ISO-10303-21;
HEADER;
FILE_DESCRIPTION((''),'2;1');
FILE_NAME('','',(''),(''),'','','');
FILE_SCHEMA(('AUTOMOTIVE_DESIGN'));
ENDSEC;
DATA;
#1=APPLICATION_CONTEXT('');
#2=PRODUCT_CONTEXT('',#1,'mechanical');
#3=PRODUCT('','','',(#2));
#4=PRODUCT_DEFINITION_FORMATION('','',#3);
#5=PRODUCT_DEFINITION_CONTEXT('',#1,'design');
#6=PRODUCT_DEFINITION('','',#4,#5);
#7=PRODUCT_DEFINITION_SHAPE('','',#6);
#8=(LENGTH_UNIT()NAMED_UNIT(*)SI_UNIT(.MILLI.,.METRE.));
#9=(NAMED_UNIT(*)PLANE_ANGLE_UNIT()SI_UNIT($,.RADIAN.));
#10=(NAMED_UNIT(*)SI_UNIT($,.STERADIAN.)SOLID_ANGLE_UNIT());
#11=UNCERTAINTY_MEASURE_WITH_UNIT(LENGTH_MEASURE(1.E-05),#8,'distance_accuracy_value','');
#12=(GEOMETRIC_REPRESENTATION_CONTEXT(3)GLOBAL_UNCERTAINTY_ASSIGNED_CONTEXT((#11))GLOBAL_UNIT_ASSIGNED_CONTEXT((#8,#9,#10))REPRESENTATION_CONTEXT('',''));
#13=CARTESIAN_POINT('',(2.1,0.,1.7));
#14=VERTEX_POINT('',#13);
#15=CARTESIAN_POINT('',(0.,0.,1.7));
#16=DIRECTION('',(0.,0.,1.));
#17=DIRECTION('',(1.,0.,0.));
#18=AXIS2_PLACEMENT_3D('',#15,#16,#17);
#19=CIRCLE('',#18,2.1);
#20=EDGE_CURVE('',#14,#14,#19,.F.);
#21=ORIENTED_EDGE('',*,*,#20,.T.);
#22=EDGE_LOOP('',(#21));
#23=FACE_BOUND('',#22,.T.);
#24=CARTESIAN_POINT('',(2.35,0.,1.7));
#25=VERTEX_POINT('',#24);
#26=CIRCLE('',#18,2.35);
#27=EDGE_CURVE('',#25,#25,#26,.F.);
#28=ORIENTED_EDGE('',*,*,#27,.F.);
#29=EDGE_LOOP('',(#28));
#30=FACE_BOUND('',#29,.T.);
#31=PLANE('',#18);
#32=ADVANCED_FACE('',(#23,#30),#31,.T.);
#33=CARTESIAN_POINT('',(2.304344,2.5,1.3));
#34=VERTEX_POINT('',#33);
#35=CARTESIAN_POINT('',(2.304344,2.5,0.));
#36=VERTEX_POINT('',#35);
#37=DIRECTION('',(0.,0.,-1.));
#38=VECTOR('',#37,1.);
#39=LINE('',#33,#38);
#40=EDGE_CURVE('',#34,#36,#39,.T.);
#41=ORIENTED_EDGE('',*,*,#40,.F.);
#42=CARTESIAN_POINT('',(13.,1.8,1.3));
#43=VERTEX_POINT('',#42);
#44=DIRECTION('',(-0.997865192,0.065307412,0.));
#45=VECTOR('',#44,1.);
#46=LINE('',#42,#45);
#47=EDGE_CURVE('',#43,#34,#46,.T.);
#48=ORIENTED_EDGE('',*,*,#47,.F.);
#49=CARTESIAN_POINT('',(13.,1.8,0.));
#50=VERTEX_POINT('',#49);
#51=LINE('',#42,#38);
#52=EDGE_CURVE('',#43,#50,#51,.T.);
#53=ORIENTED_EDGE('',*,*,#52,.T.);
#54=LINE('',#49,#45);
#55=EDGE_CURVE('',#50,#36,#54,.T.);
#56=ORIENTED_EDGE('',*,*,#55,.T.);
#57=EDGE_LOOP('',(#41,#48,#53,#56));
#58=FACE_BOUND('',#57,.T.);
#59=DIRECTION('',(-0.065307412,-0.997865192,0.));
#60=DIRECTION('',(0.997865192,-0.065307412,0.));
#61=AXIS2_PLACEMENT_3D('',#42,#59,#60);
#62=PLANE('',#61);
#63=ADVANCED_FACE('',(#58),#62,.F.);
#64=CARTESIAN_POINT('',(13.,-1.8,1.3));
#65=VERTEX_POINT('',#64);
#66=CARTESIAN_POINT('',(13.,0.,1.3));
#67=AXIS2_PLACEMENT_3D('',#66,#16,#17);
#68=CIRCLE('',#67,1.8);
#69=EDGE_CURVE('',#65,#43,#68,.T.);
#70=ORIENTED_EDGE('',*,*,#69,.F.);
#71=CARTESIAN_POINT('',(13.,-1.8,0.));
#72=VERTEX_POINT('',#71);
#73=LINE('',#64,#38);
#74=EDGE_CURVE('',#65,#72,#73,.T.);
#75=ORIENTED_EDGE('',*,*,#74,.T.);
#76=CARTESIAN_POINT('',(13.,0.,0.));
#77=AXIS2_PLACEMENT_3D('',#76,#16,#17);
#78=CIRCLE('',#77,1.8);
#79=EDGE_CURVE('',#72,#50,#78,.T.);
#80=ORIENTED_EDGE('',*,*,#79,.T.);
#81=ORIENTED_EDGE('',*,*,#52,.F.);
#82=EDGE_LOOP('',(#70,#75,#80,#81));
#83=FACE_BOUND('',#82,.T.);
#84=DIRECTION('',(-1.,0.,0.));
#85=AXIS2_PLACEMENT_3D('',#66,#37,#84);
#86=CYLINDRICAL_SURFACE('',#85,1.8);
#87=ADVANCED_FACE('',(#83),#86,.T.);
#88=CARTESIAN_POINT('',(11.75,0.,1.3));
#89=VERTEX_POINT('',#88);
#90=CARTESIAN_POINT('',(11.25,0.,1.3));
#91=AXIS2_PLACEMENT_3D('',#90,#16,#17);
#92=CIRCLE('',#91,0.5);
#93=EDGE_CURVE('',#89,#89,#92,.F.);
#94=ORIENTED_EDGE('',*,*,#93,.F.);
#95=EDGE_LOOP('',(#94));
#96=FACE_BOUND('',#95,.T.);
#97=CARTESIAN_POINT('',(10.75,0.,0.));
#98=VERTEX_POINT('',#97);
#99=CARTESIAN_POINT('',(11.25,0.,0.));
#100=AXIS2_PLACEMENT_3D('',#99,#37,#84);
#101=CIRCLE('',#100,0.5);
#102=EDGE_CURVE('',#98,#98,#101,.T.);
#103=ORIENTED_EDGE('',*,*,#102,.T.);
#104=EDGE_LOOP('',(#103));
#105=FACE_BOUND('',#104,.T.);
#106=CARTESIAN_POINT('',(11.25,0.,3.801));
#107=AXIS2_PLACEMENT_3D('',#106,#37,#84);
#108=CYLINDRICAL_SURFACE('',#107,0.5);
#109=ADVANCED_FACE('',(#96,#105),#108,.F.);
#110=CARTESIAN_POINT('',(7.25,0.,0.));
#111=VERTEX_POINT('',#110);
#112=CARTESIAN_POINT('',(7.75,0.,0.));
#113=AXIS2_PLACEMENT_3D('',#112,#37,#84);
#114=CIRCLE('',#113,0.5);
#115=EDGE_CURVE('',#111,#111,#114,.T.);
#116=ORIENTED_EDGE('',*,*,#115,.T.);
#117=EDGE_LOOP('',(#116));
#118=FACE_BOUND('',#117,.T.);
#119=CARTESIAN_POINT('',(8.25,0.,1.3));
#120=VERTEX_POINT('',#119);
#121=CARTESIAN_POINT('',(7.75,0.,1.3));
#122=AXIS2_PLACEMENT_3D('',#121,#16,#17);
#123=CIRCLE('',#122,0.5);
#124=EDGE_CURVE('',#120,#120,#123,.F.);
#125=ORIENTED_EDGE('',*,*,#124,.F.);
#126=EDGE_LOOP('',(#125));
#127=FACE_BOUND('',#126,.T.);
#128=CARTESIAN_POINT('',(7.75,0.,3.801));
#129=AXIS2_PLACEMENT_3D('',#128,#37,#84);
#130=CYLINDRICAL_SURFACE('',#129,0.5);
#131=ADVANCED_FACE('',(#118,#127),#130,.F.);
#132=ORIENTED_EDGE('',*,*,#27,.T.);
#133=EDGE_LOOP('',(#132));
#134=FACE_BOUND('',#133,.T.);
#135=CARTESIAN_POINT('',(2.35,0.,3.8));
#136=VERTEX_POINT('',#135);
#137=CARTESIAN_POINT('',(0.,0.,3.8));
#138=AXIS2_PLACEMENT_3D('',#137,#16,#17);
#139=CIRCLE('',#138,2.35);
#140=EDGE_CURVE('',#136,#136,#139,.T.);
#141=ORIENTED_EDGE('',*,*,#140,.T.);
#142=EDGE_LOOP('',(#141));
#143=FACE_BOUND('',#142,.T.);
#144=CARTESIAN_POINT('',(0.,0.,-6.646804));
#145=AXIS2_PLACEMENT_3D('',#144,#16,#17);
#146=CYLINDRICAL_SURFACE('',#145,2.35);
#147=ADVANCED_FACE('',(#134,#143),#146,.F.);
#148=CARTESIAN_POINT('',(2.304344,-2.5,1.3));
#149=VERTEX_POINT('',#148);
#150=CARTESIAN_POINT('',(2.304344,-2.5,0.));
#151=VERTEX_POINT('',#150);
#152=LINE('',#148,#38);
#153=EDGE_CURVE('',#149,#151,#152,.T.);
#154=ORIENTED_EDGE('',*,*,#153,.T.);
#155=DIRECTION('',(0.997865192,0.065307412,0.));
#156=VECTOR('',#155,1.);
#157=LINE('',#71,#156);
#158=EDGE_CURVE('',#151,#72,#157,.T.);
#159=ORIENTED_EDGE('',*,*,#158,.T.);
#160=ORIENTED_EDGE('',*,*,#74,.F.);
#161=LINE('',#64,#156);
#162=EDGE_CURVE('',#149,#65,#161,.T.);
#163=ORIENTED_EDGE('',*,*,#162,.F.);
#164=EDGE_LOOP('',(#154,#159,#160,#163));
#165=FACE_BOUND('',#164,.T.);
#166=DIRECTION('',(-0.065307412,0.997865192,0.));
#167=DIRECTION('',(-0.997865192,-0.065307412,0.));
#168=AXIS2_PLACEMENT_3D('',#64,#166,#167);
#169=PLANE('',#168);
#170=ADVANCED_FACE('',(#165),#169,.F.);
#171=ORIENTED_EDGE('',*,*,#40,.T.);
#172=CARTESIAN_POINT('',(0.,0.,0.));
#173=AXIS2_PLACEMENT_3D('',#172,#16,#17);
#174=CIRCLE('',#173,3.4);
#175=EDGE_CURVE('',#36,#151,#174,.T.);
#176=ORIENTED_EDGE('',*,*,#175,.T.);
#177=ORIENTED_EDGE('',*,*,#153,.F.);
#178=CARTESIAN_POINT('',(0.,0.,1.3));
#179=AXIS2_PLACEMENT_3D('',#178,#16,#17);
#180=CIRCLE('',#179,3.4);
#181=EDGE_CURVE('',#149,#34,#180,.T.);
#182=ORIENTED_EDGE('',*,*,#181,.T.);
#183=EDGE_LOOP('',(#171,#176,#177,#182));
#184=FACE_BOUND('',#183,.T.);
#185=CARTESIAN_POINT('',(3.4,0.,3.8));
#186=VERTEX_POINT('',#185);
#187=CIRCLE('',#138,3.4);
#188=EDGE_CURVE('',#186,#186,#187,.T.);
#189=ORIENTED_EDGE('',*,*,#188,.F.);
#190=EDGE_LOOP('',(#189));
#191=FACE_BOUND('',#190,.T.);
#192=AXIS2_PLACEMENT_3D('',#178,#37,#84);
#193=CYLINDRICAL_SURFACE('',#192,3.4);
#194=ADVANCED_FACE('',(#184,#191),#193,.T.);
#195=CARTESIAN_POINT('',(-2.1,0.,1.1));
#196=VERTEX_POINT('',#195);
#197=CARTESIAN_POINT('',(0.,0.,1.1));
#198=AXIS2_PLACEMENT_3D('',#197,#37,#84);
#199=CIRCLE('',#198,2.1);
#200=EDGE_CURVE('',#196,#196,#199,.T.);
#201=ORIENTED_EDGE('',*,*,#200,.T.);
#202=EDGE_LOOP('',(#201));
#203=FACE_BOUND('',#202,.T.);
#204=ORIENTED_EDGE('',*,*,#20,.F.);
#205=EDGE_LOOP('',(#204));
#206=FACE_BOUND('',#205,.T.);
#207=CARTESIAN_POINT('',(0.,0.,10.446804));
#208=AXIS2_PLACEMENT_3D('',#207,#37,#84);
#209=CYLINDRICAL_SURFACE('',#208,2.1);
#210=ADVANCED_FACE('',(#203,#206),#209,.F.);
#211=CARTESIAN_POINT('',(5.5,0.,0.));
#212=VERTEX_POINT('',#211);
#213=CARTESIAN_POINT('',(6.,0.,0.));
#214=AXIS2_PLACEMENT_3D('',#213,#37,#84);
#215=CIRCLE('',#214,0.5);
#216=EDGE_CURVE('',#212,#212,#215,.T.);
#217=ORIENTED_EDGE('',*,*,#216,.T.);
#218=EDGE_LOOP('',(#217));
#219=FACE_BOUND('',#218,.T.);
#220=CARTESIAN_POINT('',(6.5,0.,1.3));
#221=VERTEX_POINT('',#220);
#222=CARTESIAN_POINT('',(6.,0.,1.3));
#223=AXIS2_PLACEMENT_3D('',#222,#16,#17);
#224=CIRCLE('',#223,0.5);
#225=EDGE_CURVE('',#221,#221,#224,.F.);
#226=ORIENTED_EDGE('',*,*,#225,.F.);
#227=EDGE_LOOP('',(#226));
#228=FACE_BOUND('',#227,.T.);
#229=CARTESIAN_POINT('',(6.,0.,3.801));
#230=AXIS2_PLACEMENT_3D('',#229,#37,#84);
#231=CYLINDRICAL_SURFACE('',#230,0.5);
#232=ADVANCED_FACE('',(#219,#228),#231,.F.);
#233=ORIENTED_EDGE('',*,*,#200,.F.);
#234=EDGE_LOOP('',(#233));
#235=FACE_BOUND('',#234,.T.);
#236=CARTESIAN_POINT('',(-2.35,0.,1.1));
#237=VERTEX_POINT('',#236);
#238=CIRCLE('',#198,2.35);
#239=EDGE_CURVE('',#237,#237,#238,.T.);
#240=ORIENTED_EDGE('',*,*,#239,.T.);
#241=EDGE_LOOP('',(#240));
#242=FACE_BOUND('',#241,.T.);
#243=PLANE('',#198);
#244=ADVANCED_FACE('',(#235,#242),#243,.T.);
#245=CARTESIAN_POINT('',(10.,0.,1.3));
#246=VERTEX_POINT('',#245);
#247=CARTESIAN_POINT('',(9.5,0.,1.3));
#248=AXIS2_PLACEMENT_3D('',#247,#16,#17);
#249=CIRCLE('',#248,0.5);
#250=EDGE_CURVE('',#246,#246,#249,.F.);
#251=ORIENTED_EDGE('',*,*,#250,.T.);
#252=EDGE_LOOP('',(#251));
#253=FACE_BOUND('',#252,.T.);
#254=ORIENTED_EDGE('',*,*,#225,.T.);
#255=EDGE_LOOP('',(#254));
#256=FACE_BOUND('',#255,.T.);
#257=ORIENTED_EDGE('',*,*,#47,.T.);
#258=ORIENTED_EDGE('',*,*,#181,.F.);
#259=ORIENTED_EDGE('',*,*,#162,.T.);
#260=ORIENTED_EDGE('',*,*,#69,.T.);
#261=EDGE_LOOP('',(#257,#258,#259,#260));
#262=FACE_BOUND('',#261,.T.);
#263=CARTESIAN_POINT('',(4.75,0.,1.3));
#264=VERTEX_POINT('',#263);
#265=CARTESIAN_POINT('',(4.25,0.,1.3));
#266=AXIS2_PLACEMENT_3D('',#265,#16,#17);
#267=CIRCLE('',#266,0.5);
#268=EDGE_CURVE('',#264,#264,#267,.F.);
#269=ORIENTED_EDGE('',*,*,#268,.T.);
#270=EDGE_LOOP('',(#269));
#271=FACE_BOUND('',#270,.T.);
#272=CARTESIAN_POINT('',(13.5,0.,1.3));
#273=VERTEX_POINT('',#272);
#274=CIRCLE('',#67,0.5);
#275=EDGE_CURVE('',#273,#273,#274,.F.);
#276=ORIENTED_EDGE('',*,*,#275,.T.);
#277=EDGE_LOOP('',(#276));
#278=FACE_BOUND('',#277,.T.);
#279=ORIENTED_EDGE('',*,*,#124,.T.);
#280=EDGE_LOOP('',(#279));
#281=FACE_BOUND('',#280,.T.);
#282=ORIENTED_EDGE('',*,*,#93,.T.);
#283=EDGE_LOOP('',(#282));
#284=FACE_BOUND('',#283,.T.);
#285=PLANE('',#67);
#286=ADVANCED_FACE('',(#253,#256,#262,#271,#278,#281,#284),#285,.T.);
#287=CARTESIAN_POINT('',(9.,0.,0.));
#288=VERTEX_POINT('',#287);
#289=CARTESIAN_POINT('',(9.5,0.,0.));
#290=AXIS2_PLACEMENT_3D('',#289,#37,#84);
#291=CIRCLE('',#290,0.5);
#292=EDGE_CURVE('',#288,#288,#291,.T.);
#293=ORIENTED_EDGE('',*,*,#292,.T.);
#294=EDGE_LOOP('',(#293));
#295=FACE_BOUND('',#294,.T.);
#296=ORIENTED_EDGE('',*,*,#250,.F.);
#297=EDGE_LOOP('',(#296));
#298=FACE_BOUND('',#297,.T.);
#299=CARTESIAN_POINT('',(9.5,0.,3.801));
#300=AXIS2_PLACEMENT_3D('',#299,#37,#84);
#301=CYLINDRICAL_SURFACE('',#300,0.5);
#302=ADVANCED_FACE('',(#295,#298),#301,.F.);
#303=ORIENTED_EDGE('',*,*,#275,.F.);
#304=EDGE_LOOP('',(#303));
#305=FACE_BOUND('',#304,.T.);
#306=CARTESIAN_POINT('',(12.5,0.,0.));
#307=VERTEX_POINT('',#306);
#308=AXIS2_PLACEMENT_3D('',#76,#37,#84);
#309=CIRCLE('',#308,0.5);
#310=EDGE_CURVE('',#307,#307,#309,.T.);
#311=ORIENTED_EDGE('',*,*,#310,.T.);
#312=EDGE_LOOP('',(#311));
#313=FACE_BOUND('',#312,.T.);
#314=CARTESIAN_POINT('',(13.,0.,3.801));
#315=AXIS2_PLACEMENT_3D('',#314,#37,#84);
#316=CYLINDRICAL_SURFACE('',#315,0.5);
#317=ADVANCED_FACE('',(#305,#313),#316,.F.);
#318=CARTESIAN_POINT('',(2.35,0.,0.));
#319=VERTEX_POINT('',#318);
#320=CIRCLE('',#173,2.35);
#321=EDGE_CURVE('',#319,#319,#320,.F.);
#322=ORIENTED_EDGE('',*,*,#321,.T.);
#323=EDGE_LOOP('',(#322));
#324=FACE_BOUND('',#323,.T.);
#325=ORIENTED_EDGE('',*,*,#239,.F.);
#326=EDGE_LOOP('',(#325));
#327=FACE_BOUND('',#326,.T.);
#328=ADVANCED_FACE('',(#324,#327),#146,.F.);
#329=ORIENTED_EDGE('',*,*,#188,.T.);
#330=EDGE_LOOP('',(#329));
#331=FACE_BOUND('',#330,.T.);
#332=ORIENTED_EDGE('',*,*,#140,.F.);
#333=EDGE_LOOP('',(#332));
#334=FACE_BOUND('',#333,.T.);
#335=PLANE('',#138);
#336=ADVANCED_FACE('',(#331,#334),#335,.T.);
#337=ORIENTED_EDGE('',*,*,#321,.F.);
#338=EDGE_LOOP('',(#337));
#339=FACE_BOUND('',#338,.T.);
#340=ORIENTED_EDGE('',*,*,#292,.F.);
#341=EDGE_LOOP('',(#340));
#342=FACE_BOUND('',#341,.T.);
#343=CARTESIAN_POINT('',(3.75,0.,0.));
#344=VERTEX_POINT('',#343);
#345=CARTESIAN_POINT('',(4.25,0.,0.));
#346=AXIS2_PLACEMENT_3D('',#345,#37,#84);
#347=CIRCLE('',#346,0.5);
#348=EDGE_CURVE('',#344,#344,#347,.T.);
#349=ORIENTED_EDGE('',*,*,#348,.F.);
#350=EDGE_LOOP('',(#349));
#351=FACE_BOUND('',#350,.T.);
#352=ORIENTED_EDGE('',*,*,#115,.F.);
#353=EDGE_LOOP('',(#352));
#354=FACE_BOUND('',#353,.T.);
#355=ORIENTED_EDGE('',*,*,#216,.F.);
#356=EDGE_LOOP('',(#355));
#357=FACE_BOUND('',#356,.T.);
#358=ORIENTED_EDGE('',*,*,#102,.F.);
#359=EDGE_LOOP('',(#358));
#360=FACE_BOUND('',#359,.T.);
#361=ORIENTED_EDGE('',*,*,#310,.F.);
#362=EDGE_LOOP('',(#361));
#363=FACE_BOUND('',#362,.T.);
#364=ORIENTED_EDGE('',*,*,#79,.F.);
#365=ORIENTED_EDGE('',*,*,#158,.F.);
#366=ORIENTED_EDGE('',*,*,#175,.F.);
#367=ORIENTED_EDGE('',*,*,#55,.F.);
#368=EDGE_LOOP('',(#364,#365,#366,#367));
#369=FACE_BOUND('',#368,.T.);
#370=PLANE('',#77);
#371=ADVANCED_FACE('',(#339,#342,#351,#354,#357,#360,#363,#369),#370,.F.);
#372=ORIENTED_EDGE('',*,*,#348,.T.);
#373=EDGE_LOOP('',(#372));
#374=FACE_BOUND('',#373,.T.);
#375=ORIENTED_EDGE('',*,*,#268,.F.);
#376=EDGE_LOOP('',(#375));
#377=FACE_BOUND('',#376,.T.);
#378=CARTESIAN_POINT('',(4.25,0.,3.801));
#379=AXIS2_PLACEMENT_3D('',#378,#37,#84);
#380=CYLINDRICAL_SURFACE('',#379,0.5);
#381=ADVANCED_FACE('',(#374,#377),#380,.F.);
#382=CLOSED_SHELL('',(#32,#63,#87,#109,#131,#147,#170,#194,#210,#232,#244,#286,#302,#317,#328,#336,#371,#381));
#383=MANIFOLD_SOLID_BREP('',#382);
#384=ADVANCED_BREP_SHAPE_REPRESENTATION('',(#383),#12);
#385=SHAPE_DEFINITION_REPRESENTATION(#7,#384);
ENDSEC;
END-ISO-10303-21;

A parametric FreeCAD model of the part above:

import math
import FreeCAD as App
import Part
import Sketcher

V = App.Vector

doc = App.newDocument("Part")
params = doc.addObject("Spreadsheet::Sheet", "Params")
for row, (alias, value) in enumerate([
    ("sketch1_radius", "3.4 mm"),
    ("sketch1_radius2", "1.8 mm"),
    ("pad1_length", "1.3 mm"),
    ("sketch2_diameter", "4.7 mm"),
    ("pocket1_length", "1.3 mm"),
    ("sketch3_diameter", "6.8 mm"),
    ("sketch3_diameter2", "4.7 mm"),
    ("pad2_length", "2.5 mm"),
    ("sketch4_diameter", "4.7 mm"),
    ("sketch4_diameter2", "4.2 mm"),
    ("pad3_length", "0.6 mm"),
    ("sketch5_diameter", "1 mm"),
    ("sketch6_diameter", "1 mm"),
    ("sketch7_diameter", "1 mm"),
    ("sketch8_diameter", "1 mm"),
    ("sketch9_diameter", "1 mm"),
    ("sketch10_diameter", "1 mm"),
], start=1):
    params.set(f"A{row}", alias)
    params.set(f"B{row}", "=" + value)
    params.setAlias(f"B{row}", alias)

body = doc.addObject("PartDesign::Body", "Body")

sketch1 = body.newObject("Sketcher::SketchObject", "Sketch")
sketch1.AttachmentSupport = (doc.getObject("XY_Plane"), [""])
sketch1.MapMode = "FlatFace"
sketch1.addGeometry(Part.LineSegment(V(13, 1.8, 0), V(2.3, 2.5, 0)), False)
sketch1.addGeometry(Part.ArcOfCircle(Part.Circle(V(0, 0, 0), V(0, 0, 1), 3.4), math.radians(47), math.radians(313)), False)
sketch1.addGeometry(Part.LineSegment(V(2.3, -2.5, 0), V(13, -1.8, 0)), False)
sketch1.addGeometry(Part.ArcOfCircle(Part.Circle(V(13, 0, 0), V(0, 0, 1), 1.8), math.radians(-90), math.radians(90)), False)
sketch1.addConstraint(Sketcher.Constraint("Coincident", 0, 2, 1, 1))
sketch1.addConstraint(Sketcher.Constraint("Coincident", 1, 2, 2, 1))
sketch1.addConstraint(Sketcher.Constraint("Coincident", 2, 2, 3, 1))
sketch1.addConstraint(Sketcher.Constraint("Coincident", 3, 2, 0, 1))
sketch1.addConstraint(Sketcher.Constraint("Coincident", 1, 3, -1, 1))
sketch1.addConstraint(Sketcher.Constraint("Symmetric", 2, 2, 3, 2, -1))
sketch1.addConstraint(Sketcher.Constraint("Vertical", 0, 2, 1, 2))
sketch1.addConstraint(Sketcher.Constraint("Vertical", 3, 3, 2, 2))
sketch1.addConstraint(Sketcher.Constraint("Radius", 1, 3.4))
sketch1.addConstraint(Sketcher.Constraint("Radius", 3, 1.8))
sketch1.addConstraint(Sketcher.Constraint("DistanceX", -1, 1, 3, 3, 13.0))
sketch1.addConstraint(Sketcher.Constraint("DistanceY", 1, 2, 0, 2, 5.0))
sketch1.setExpression("Constraints[8]", "Params.sketch1_radius")
sketch1.setExpression("Constraints[9]", "Params.sketch1_radius2")
pad1 = body.newObject("PartDesign::Pad", "Pad")
pad1.Profile = sketch1
pad1.setExpression("Length", "Params.pad1_length")

sketch2 = body.newObject("Sketcher::SketchObject", "Sketch001")
sketch2.AttachmentSupport = (doc.getObject("XY_Plane"), [""])
sketch2.MapMode = "FlatFace"
sketch2.AttachmentOffset = App.Placement(V(0, 0, 1.3), App.Rotation())
sketch2.addGeometry(Part.Circle(V(0, 0, 0), V(0, 0, 1), 2.4), False)
sketch2.addConstraint(Sketcher.Constraint("Coincident", 0, 3, -1, 1))
sketch2.addConstraint(Sketcher.Constraint("Diameter", 0, 4.7))
sketch2.setExpression("Constraints[1]", "Params.sketch2_diameter")
pocket1 = body.newObject("PartDesign::Pocket", "Pocket")
pocket1.Profile = sketch2
pocket1.setExpression("Length", "Params.pocket1_length")

sketch3 = body.newObject("Sketcher::SketchObject", "Sketch002")
sketch3.AttachmentSupport = (doc.getObject("XY_Plane"), [""])
sketch3.MapMode = "FlatFace"
sketch3.AttachmentOffset = App.Placement(V(0, 0, 1.3), App.Rotation())
sketch3.addGeometry(Part.Circle(V(0, 0, 0), V(0, 0, 1), 3.4), False)
sketch3.addGeometry(Part.Circle(V(0, 0, 0), V(0, 0, 1), 2.4), False)
sketch3.addConstraint(Sketcher.Constraint("Coincident", 0, 3, -1, 1))
sketch3.addConstraint(Sketcher.Constraint("Coincident", 1, 3, -1, 1))
sketch3.addConstraint(Sketcher.Constraint("Diameter", 0, 6.8))
sketch3.addConstraint(Sketcher.Constraint("Diameter", 1, 4.7))
sketch3.setExpression("Constraints[2]", "Params.sketch3_diameter")
sketch3.setExpression("Constraints[3]", "Params.sketch3_diameter2")
pad2 = body.newObject("PartDesign::Pad", "Pad001")
pad2.Profile = sketch3
pad2.setExpression("Length", "Params.pad2_length")

sketch4 = body.newObject("Sketcher::SketchObject", "Sketch003")
sketch4.AttachmentSupport = (doc.getObject("XY_Plane"), [""])
sketch4.MapMode = "FlatFace"
sketch4.AttachmentOffset = App.Placement(V(0, 0, 1.1), App.Rotation())
sketch4.addGeometry(Part.Circle(V(0, 0, 0), V(0, 0, 1), 2.4), False)
sketch4.addGeometry(Part.Circle(V(0, 0, 0), V(0, 0, 1), 2.1), False)
sketch4.addConstraint(Sketcher.Constraint("Coincident", 0, 3, -1, 1))
sketch4.addConstraint(Sketcher.Constraint("Coincident", 1, 3, -1, 1))
sketch4.addConstraint(Sketcher.Constraint("Diameter", 0, 4.7))
sketch4.addConstraint(Sketcher.Constraint("Diameter", 1, 4.2))
sketch4.setExpression("Constraints[2]", "Params.sketch4_diameter")
sketch4.setExpression("Constraints[3]", "Params.sketch4_diameter2")
pad3 = body.newObject("PartDesign::Pad", "Pad002")
pad3.Profile = sketch4
pad3.setExpression("Length", "Params.pad3_length")

sketch5 = body.newObject("Sketcher::SketchObject", "Sketch004")
sketch5.AttachmentSupport = (doc.getObject("XY_Plane"), [""])
sketch5.MapMode = "FlatFace"
sketch5.addGeometry(Part.Circle(V(13, 0, 0), V(0, 0, 1), 0.5), False)
sketch5.addConstraint(Sketcher.Constraint("PointOnObject", 0, 3, -1))
sketch5.addConstraint(Sketcher.Constraint("Diameter", 0, 1.0))
sketch5.addConstraint(Sketcher.Constraint("DistanceX", -1, 1, 0, 3, 13.0))
sketch5.setExpression("Constraints[1]", "Params.sketch5_diameter")
pocket2 = body.newObject("PartDesign::Pocket", "Pocket001")
pocket2.Profile = sketch5
pocket2.Type = "UpToFirst"
pocket2.Reversed = True

sketch6 = body.newObject("Sketcher::SketchObject", "Sketch005")
sketch6.AttachmentSupport = (doc.getObject("XY_Plane"), [""])
sketch6.MapMode = "FlatFace"
sketch6.addGeometry(Part.Circle(V(11.2, 0, 0), V(0, 0, 1), 0.5), False)
sketch6.addConstraint(Sketcher.Constraint("PointOnObject", 0, 3, -1))
sketch6.addConstraint(Sketcher.Constraint("Diameter", 0, 1.0))
sketch6.addConstraint(Sketcher.Constraint("DistanceX", -1, 1, 0, 3, 11.25))
sketch6.setExpression("Constraints[1]", "Params.sketch6_diameter")
pocket3 = body.newObject("PartDesign::Pocket", "Pocket002")
pocket3.Profile = sketch6
pocket3.Type = "UpToFirst"
pocket3.Reversed = True

sketch7 = body.newObject("Sketcher::SketchObject", "Sketch006")
sketch7.AttachmentSupport = (doc.getObject("XY_Plane"), [""])
sketch7.MapMode = "FlatFace"
sketch7.addGeometry(Part.Circle(V(9.5, 0, 0), V(0, 0, 1), 0.5), False)
sketch7.addConstraint(Sketcher.Constraint("PointOnObject", 0, 3, -1))
sketch7.addConstraint(Sketcher.Constraint("Diameter", 0, 1.0))
sketch7.addConstraint(Sketcher.Constraint("DistanceX", -1, 1, 0, 3, 9.5))
sketch7.setExpression("Constraints[1]", "Params.sketch7_diameter")
pocket4 = body.newObject("PartDesign::Pocket", "Pocket003")
pocket4.Profile = sketch7
pocket4.Type = "UpToFirst"
pocket4.Reversed = True

sketch8 = body.newObject("Sketcher::SketchObject", "Sketch007")
sketch8.AttachmentSupport = (doc.getObject("XY_Plane"), [""])
sketch8.MapMode = "FlatFace"
sketch8.addGeometry(Part.Circle(V(7.8, 0, 0), V(0, 0, 1), 0.5), False)
sketch8.addConstraint(Sketcher.Constraint("PointOnObject", 0, 3, -1))
sketch8.addConstraint(Sketcher.Constraint("Diameter", 0, 1.0))
sketch8.addConstraint(Sketcher.Constraint("DistanceX", -1, 1, 0, 3, 7.75))
sketch8.setExpression("Constraints[1]", "Params.sketch8_diameter")
pocket5 = body.newObject("PartDesign::Pocket", "Pocket004")
pocket5.Profile = sketch8
pocket5.Type = "UpToFirst"
pocket5.Reversed = True

sketch9 = body.newObject("Sketcher::SketchObject", "Sketch008")
sketch9.AttachmentSupport = (doc.getObject("XY_Plane"), [""])
sketch9.MapMode = "FlatFace"
sketch9.addGeometry(Part.Circle(V(6, 0, 0), V(0, 0, 1), 0.5), False)
sketch9.addConstraint(Sketcher.Constraint("PointOnObject", 0, 3, -1))
sketch9.addConstraint(Sketcher.Constraint("Diameter", 0, 1.0))
sketch9.addConstraint(Sketcher.Constraint("DistanceX", -1, 1, 0, 3, 6.0))
sketch9.setExpression("Constraints[1]", "Params.sketch9_diameter")
pocket6 = body.newObject("PartDesign::Pocket", "Pocket005")
pocket6.Profile = sketch9
pocket6.Type = "UpToFirst"
pocket6.Reversed = True

sketch10 = body.newObject("Sketcher::SketchObject", "Sketch009")
sketch10.AttachmentSupport = (doc.getObject("XY_Plane"), [""])
sketch10.MapMode = "FlatFace"
sketch10.addGeometry(Part.Circle(V(4.2, 0, 0), V(0, 0, 1), 0.5), False)
sketch10.addConstraint(Sketcher.Constraint("PointOnObject", 0, 3, -1))
sketch10.addConstraint(Sketcher.Constraint("Diameter", 0, 1.0))
sketch10.addConstraint(Sketcher.Constraint("DistanceX", -1, 1, 0, 3, 4.25))
sketch10.setExpression("Constraints[1]", "Params.sketch10_diameter")
pocket7 = body.newObject("PartDesign::Pocket", "Pocket006")
pocket7.Profile = sketch10
pocket7.Type = "UpToFirst"
pocket7.Reversed = True

doc.recompute()
